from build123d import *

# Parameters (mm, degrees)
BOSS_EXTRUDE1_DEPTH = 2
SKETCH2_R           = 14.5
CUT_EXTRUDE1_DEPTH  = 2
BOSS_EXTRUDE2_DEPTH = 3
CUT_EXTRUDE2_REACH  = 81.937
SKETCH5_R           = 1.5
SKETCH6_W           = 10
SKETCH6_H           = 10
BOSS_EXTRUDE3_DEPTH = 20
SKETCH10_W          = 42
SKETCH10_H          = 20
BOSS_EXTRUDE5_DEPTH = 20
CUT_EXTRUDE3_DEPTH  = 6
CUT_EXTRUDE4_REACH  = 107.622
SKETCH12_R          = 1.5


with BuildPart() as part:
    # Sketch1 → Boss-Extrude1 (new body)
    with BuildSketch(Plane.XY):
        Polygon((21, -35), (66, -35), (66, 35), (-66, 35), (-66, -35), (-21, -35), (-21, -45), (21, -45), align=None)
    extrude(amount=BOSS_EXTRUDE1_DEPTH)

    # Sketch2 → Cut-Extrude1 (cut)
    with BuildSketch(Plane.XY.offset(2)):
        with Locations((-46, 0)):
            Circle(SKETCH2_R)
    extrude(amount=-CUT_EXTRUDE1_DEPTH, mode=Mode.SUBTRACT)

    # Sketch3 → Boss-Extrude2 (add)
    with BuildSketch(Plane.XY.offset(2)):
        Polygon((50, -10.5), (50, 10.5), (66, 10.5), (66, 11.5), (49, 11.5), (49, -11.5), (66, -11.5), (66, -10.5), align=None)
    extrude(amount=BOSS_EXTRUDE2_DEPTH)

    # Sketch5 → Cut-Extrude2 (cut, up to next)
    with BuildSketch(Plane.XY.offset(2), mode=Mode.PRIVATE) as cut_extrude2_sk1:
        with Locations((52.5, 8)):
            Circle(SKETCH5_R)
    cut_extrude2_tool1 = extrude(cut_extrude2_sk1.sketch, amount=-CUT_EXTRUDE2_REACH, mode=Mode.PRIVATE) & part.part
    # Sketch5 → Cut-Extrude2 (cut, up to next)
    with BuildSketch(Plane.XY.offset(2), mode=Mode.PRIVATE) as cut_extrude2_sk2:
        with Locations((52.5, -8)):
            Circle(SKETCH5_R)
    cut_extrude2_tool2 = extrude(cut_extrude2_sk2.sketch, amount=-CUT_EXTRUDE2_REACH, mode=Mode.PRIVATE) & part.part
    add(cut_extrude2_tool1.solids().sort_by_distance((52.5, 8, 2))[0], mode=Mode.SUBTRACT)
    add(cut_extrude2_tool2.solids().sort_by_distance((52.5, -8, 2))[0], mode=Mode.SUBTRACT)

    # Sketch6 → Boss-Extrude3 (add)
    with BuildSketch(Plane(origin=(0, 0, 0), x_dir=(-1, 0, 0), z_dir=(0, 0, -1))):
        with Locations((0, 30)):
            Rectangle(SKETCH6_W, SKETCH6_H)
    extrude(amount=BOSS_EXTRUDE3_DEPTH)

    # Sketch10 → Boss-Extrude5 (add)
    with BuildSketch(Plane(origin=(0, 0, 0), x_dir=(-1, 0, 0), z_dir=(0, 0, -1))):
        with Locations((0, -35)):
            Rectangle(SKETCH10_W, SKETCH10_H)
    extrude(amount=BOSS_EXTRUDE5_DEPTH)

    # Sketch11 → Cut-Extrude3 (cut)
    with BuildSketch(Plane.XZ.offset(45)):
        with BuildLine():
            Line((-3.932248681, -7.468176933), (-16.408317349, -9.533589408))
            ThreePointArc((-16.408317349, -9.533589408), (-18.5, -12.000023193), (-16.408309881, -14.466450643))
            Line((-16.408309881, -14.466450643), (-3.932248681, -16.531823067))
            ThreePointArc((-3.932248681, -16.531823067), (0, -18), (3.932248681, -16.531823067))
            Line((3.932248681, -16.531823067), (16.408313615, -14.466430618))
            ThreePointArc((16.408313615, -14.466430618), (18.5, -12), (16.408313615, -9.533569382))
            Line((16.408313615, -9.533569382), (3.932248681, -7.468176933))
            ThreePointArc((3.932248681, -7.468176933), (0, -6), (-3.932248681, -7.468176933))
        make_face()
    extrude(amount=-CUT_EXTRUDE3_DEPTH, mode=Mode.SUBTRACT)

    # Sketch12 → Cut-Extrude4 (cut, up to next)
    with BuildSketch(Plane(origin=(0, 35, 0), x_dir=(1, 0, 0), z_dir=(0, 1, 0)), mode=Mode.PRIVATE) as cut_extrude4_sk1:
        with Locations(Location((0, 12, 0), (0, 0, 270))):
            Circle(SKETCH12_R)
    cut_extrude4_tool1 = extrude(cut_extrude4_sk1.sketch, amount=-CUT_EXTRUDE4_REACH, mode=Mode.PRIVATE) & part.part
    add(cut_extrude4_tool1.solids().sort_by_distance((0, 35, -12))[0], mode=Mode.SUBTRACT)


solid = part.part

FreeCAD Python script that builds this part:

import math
import FreeCAD as App
import Part
import Sketcher


def add_polygon(sketch, points):
    """Adds a closed chain of lines whose ends are joined by coincident constraints."""
    first, n = sketch.GeometryCount, len(points)
    for a, b in zip(points, points[1:] + points[:1]):
        sketch.addGeometry(Part.LineSegment(App.Vector(*a, 0), App.Vector(*b, 0)), False)
    for i in range(n):
        sketch.addConstraint(Sketcher.Constraint("Coincident", first + i, 2, first + (i + 1) % n, 1))

doc = App.newDocument("Part")
body = doc.addObject("PartDesign::Body", "Body")

sketch1 = doc.addObject("Sketcher::SketchObject", "Sketch")
body.addObject(sketch1)
sketch1.AttachmentSupport = (doc.XY_Plane, [""])
sketch1.MapMode = "FlatFace"
add_polygon(sketch1, [(21, -35), (66, -35), (66, 35), (-66, 35), (-66, -35), (-21, -35), (-21, -45), (21, -45)])
sketch1.addConstraint([
    Sketcher.Constraint("Horizontal", 0),
    Sketcher.Constraint("Vertical", 1),
    Sketcher.Constraint("Horizontal", 2),
    Sketcher.Constraint("Vertical", 3),
    Sketcher.Constraint("Horizontal", 4),
    Sketcher.Constraint("Vertical", 5),
    Sketcher.Constraint("Horizontal", 6),
    Sketcher.Constraint("Vertical", 7),
    Sketcher.Constraint("Symmetric", 0, 2, 2, 2, -1, 1),
    Sketcher.Constraint("Symmetric", 4, 2, 7, 2, -2),
    Sketcher.Constraint("DistanceX", 0, 1, 0, 2, 45.0),
    Sketcher.Constraint("DistanceX", 2, 2, 2, 1, 132.0),
    Sketcher.Constraint("DistanceY", 1, 1, 1, 2, 70.0),
    Sketcher.Constraint("DistanceY", 5, 2, 5, 1, 10.0),
])
pad1 = doc.addObject("PartDesign::Pad", "Pad")
body.addObject(pad1)
pad1.Profile = sketch1
pad1.Length = 2

sketch2 = doc.addObject("Sketcher::SketchObject", "Sketch001")
body.addObject(sketch2)
sketch2.AttachmentSupport = (doc.XY_Plane, [""])
sketch2.MapMode = "FlatFace"
sketch2.AttachmentOffset = App.Placement(App.Vector(0, 0, 2), App.Rotation())
sketch2.addGeometry(Part.Circle(App.Vector(-46, 0, 0), App.Vector(0, 0, 1), 14), False)
sketch2.addConstraint([
    Sketcher.Constraint("PointOnObject", 0, 3, -1),
    Sketcher.Constraint("Diameter", 0, 29.0),
    Sketcher.Constraint("DistanceX", 0, 3, -1, 1, 46.0),
])
pocket1 = doc.addObject("PartDesign::Pocket", "Pocket")
body.addObject(pocket1)
pocket1.Profile = sketch2
pocket1.Length = 2

sketch3 = doc.addObject("Sketcher::SketchObject", "Sketch002")
body.addObject(sketch3)
sketch3.AttachmentSupport = (doc.XY_Plane, [""])
sketch3.MapMode = "FlatFace"
sketch3.AttachmentOffset = App.Placement(App.Vector(0, 0, 2), App.Rotation())
add_polygon(sketch3, [(50, -10.5), (50, 10.5), (66, 10.5), (66, 11.5), (49, 11.5), (49, -11.5), (66, -11.5), (66, -10.5)])
sketch3.addConstraint([
    Sketcher.Constraint("Vertical", 0),
    Sketcher.Constraint("Horizontal", 1),
    Sketcher.Constraint("Vertical", 2),
    Sketcher.Constraint("Horizontal", 3),
    Sketcher.Constraint("Vertical", 4),
    Sketcher.Constraint("Horizontal", 5),
    Sketcher.Constraint("Vertical", 6),
    Sketcher.Constraint("Horizontal", 7),
    Sketcher.Constraint("Symmetric", 2, 2, 5, 2, -1),
    Sketcher.Constraint("Equal", 2, 6),
    Sketcher.Constraint("DistanceX", 1, 1, 1, 2, 16.0),
    Sketcher.Constraint("DistanceX", 3, 2, 3, 1, 17.0),
    Sketcher.Constraint("DistanceY", 0, 1, 0, 2, 21.0),
    Sketcher.Constraint("DistanceY", 2, 1, 2, 2, 1.0),
    Sketcher.Constraint("DistanceX", -1, 1, 0, 2, 50.0),
])
pad2 = doc.addObject("PartDesign::Pad", "Pad001")
body.addObject(pad2)
pad2.Profile = sketch3
pad2.Length = 3

sketch4 = doc.addObject("Sketcher::SketchObject", "Sketch003")
body.addObject(sketch4)
sketch4.AttachmentSupport = (doc.XY_Plane, [""])
sketch4.MapMode = "FlatFace"
sketch4.AttachmentOffset = App.Placement(App.Vector(0, 0, 2), App.Rotation())
sketch4.addGeometry(Part.Circle(App.Vector(52.5, 8, 0), App.Vector(0, 0, 1), 1.5), False)
sketch4.addConstraint([
    Sketcher.Constraint("Diameter", 0, 3.0),
    Sketcher.Constraint("DistanceY", -1, 1, 0, 3, 8.0),
    Sketcher.Constraint("DistanceX", -1, 1, 0, 3, 52.5),
])
pocket2 = doc.addObject("PartDesign::Pocket", "Pocket001")
body.addObject(pocket2)
pocket2.Profile = sketch4
pocket2.Type = "UpToFirst"

sketch5 = doc.addObject("Sketcher::SketchObject", "Sketch004")
body.addObject(sketch5)
sketch5.AttachmentSupport = (doc.XY_Plane, [""])
sketch5.MapMode = "FlatFace"
sketch5.AttachmentOffset = App.Placement(App.Vector(0, 0, 2), App.Rotation())
sketch5.addGeometry(Part.Circle(App.Vector(52.5, -8, 0), App.Vector(0, 0, 1), 1.5), False)
sketch5.addConstraint([
    Sketcher.Constraint("Diameter", 0, 3.0),
    Sketcher.Constraint("DistanceY", 0, 3, -1, 1, 8.0),
    Sketcher.Constraint("DistanceX", -1, 1, 0, 3, 52.5),
])
pocket3 = doc.addObject("PartDesign::Pocket", "Pocket002")
body.addObject(pocket3)
pocket3.Profile = sketch5
pocket3.Type = "UpToFirst"

sketch6 = doc.addObject("Sketcher::SketchObject", "Sketch005")
body.addObject(sketch6)
sketch6.AttachmentSupport = (doc.XY_Plane, [""])
sketch6.MapMode = "FlatFace"
add_polygon(sketch6, [(5, 35), (5, 25), (-5, 25), (-5, 35)])
sketch6.addConstraint([
    Sketcher.Constraint("Vertical", 0),
    Sketcher.Constraint("Horizontal", 1),
    Sketcher.Constraint("Vertical", 2),
    Sketcher.Constraint("Horizontal", 3),
    Sketcher.Constraint("Equal", 3, 0),
    Sketcher.Constraint("DistanceX", 1, 2, 1, 1, 10.0),
    Sketcher.Constraint("DistanceX", -1, 1, 0, 2, 5.0),
    Sketcher.Constraint("DistanceY", -1, 1, 0, 2, 25.0),
])
pad3 = doc.addObject("PartDesign::Pad", "Pad002")
body.addObject(pad3)
pad3.Profile = sketch6
pad3.Length = 20
pad3.Reversed = True

sketch7 = doc.addObject("Sketcher::SketchObject", "Sketch006")
body.addObject(sketch7)
sketch7.AttachmentSupport = (doc.XY_Plane, [""])
sketch7.MapMode = "FlatFace"
add_polygon(sketch7, [(21, -25), (21, -45), (-21, -45), (-21, -25)])
sketch7.addConstraint([
    Sketcher.Constraint("Vertical", 0),
    Sketcher.Constraint("Horizontal", 1),
    Sketcher.Constraint("Vertical", 2),
    Sketcher.Constraint("Horizontal", 3),
    Sketcher.Constraint("DistanceX", 1, 2, 1, 1, 42.0),
    Sketcher.Constraint("DistanceY", 0, 2, 0, 1, 20.0),
    Sketcher.Constraint("DistanceX", -1, 1, 0, 2, 21.0),
    Sketcher.Constraint("DistanceY", 0, 2, -1, 1, 45.0),
])
pad4 = doc.addObject("PartDesign::Pad", "Pad003")
body.addObject(pad4)
pad4.Profile = sketch7
pad4.Length = 20
pad4.Reversed = True

sketch8 = doc.addObject("Sketcher::SketchObject", "Sketch007")
body.addObject(sketch8)
sketch8.AttachmentSupport = (doc.XZ_Plane, [""])
sketch8.MapMode = "FlatFace"
sketch8.AttachmentOffset = App.Placement(App.Vector(0, 0, 45), App.Rotation())
sketch8.addGeometry([
    Part.LineSegment(App.Vector(-3.932249, -7.468177, 0), App.Vector(-16.408317, -9.533589, 0)),
    Part.ArcOfCircle(Part.Circle(App.Vector(-16, -12.000019, 0), App.Vector(0, 0, 1), 2.5), math.radians(99.400057), math.radians(260.600117)),
    Part.LineSegment(App.Vector(-16.40831, -14.466451, 0), App.Vector(-3.932249, -16.531823, 0)),
    Part.ArcOfCircle(Part.Circle(App.Vector(0, -12, 0), App.Vector(0, 0, 1), 6), math.radians(-130.948074), math.radians(-49.051926)),
    Part.LineSegment(App.Vector(3.932249, -16.531823, 0), App.Vector(16.408314, -14.466431, 0)),
    Part.ArcOfCircle(Part.Circle(App.Vector(16, -12, 0), App.Vector(0, 0, 1), 2.5), math.radians(-80.60003), math.radians(80.60003)),
    Part.LineSegment(App.Vector(16.408314, -9.533569, 0), App.Vector(3.932249, -7.468177, 0)),
    Part.ArcOfCircle(Part.Circle(App.Vector(0, -12, 0), App.Vector(0, 0, 1), 6), math.radians(49.051926), math.radians(130.948074)),
], False)
sketch8.addConstraint([
    Sketcher.Constraint("Coincident", 0, 2, 1, 1),
    Sketcher.Constraint("Coincident", 1, 2, 2, 1),
    Sketcher.Constraint("Coincident", 2, 2, 3, 1),
    Sketcher.Constraint("Coincident", 3, 2, 4, 1),
    Sketcher.Constraint("Coincident", 4, 2, 5, 1),
    Sketcher.Constraint("Coincident", 5, 2, 6, 1),
    Sketcher.Constraint("Coincident", 6, 2, 7, 1),
    Sketcher.Constraint("Coincident", 7, 2, 0, 1),
    Sketcher.Constraint("Coincident", 7, 3, 3, 3),
    Sketcher.Constraint("PointOnObject", 3, 3, -2),
    Sketcher.Constraint("Radius", 3, 6.0),
    Sketcher.Constraint("Radius", 7, 6.0),
    Sketcher.Constraint("Radius", 1, 2.5),
    Sketcher.Constraint("Radius", 5, 2.5),
    Sketcher.Constraint("DistanceX", 1, 3, -1, 1, 16.0),
    Sketcher.Constraint("DistanceY", 3, 3, -1, 1, 12.0),
    Sketcher.Constraint("DistanceX", -1, 1, 5, 3, 16.0),
    Sketcher.Constraint("DistanceY", 5, 3, -1, 1, 12.0),
    Sketcher.Constraint("Distance", 4, 12.645871),
    Sketcher.Constraint("Distance", 6, 12.645871),
    Sketcher.Constraint("DistanceY", 1, 3, -1, 1, 12.000019),
    Sketcher.Constraint("DistanceY", 0, 2, -1, 1, 9.533589),
    Sketcher.Constraint("DistanceX", 1, 2, -1, 1, 16.40831),
    Sketcher.Constraint("DistanceX", 2, 2, -1, 1, 3.932249),
    Sketcher.Constraint("DistanceX", -1, 1, 3, 2, 3.932249),
    Sketcher.Constraint("DistanceY", 5, 2, -1, 1, 9.533569),
    Sketcher.Constraint("DistanceX", 7, 2, -1, 1, 3.932249),
])
pocket4 = doc.addObject("PartDesign::Pocket", "Pocket003")
body.addObject(pocket4)
pocket4.Profile = sketch8
pocket4.Length = 6

sketch9 = doc.addObject("Sketcher::SketchObject", "Sketch008")
body.addObject(sketch9)
sketch9.AttachmentSupport = (doc.XZ_Plane, [""])
sketch9.MapMode = "FlatFace"
sketch9.AttachmentOffset = App.Placement(App.Vector(0, 0, -35), App.Rotation())
sketch9.addGeometry(Part.Circle(App.Vector(0, -12, 0), App.Vector(0, 0, 1), 1.5), False)
sketch9.addConstraint([
    Sketcher.Constraint("PointOnObject", 0, 3, -2),
    Sketcher.Constraint("Diameter", 0, 3.0),
    Sketcher.Constraint("DistanceY", 0, 3, -1, 1, 12.0),
])
pocket5 = doc.addObject("PartDesign::Pocket", "Pocket004")
body.addObject(pocket5)
pocket5.Profile = sketch9
pocket5.Type = "UpToFirst"
pocket5.Reversed = True

doc.recompute()
